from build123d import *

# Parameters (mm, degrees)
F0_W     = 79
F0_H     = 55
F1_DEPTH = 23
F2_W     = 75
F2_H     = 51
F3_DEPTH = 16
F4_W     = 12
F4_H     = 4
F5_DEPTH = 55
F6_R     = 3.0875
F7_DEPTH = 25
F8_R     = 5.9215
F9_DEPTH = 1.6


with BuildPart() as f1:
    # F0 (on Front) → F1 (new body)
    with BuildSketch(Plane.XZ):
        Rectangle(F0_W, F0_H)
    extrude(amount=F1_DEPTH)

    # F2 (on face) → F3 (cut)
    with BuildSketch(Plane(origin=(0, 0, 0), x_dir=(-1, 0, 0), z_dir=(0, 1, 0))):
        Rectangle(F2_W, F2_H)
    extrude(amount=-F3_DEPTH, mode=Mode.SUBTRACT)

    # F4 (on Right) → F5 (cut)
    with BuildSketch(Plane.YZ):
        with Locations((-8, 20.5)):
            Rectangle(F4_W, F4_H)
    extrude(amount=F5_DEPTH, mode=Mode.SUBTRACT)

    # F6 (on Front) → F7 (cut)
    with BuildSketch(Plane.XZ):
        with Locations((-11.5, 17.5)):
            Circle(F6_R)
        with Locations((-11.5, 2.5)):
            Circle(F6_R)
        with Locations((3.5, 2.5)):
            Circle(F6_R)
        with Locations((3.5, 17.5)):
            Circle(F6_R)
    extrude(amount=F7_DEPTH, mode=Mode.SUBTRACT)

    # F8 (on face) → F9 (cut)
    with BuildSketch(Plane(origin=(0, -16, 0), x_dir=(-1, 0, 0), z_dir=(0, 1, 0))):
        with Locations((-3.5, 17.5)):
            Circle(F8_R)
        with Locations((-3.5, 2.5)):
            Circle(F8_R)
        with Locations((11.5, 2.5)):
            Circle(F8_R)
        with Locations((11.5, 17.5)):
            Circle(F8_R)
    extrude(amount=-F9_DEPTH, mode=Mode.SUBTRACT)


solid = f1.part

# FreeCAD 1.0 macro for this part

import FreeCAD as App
import Part
import Sketcher

V = App.Vector
Q = App.Units.Quantity

doc = App.newDocument("Part")
params = doc.addObject("Spreadsheet::Sheet", "Params")
for row, (alias, value) in enumerate([
    ("sketch1_width", "79 mm"),
    ("sketch1_height", "55 mm"),
    ("pad1_length", "23 mm"),
    ("sketch2_width", "75 mm"),
    ("sketch2_height", "51 mm"),
    ("pocket1_length", "16 mm"),
    ("sketch3_width", "12 mm"),
    ("sketch3_height", "4 mm"),
    ("pocket2_length", "55 mm"),
    ("pocket3_length", "25 mm"),
    ("pocket4_length", "1.6 mm"),
], start=1):
    params.set(f"A{row}", alias)
    params.set(f"B{row}", "=" + value)
    params.setAlias(f"B{row}", alias)

body = doc.addObject("PartDesign::Body", "Body")

# Sketch on XZ plane
sketch1 = doc.addObject("Sketcher::SketchObject", "Sketch")
body.addObject(sketch1)
sketch1.AttachmentSupport = (doc.XZ_Plane, [""])
sketch1.MapMode = "FlatFace"
sketch1.addGeometry(Part.LineSegment(V(-40, 28, 0), V(-40, -28, 0)), False)
sketch1.addGeometry(Part.LineSegment(V(-40, -28, 0), V(40, -28, 0)), False)
sketch1.addGeometry(Part.LineSegment(V(40, -28, 0), V(40, 28, 0)), False)
sketch1.addGeometry(Part.LineSegment(V(40, 28, 0), V(-40, 28, 0)), False)
sketch1.addConstraint(Sketcher.Constraint("Coincident", 0, 2, 1, 1))
sketch1.addConstraint(Sketcher.Constraint("Coincident", 1, 2, 2, 1))
sketch1.addConstraint(Sketcher.Constraint("Coincident", 2, 2, 3, 1))
sketch1.addConstraint(Sketcher.Constraint("Coincident", 3, 2, 0, 1))
sketch1.addConstraint(Sketcher.Constraint("Vertical", 0))
sketch1.addConstraint(Sketcher.Constraint("Horizontal", 1))
sketch1.addConstraint(Sketcher.Constraint("Vertical", 2))
sketch1.addConstraint(Sketcher.Constraint("Horizontal", 3))
sketch1.addConstraint(Sketcher.Constraint("Symmetric", 0, 2, 2, 2, -1, 1))
sketch1.addConstraint(Sketcher.Constraint("DistanceX", 1, 1, 1, 2, Q("79 mm")))
sketch1.addConstraint(Sketcher.Constraint("DistanceY", 0, 2, 0, 1, Q("55 mm")))
sketch1.setExpression("Constraints[9]", "Params.sketch1_width")
sketch1.setExpression("Constraints[10]", "Params.sketch1_height")
pad1 = doc.addObject("PartDesign::Pad", "Pad")
body.addObject(pad1)
pad1.Profile = sketch1
pad1.setExpression("Length", "Params.pad1_length")

# Sketch on XZ plane
sketch2 = doc.addObject("Sketcher::SketchObject", "Sketch001")
body.addObject(sketch2)
sketch2.AttachmentSupport = (doc.XZ_Plane, [""])
sketch2.MapMode = "FlatFace"
sketch2.addGeometry(Part.LineSegment(V(38, 26, 0), V(38, -26, 0)), False)
sketch2.addGeometry(Part.LineSegment(V(38, -26, 0), V(-38, -26, 0)), False)
sketch2.addGeometry(Part.LineSegment(V(-38, -26, 0), V(-38, 26, 0)), False)
sketch2.addGeometry(Part.LineSegment(V(-38, 26, 0), V(38, 26, 0)), False)
sketch2.addConstraint(Sketcher.Constraint("Coincident", 0, 2, 1, 1))
sketch2.addConstraint(Sketcher.Constraint("Coincident", 1, 2, 2, 1))
sketch2.addConstraint(Sketcher.Constraint("Coincident", 2, 2, 3, 1))
sketch2.addConstraint(Sketcher.Constraint("Coincident", 3, 2, 0, 1))
sketch2.addConstraint(Sketcher.Constraint("Vertical", 0))
sketch2.addConstraint(Sketcher.Constraint("Horizontal", 1))
sketch2.addConstraint(Sketcher.Constraint("Vertical", 2))
sketch2.addConstraint(Sketcher.Constraint("Horizontal", 3))
sketch2.addConstraint(Sketcher.Constraint("Symmetric", 0, 2, 2, 2, -1, 1))
sketch2.addConstraint(Sketcher.Constraint("DistanceX", 1, 2, 1, 1, Q("75 mm")))
sketch2.addConstraint(Sketcher.Constraint("DistanceY", 0, 2, 0, 1, Q("51 mm")))
sketch2.setExpression("Constraints[9]", "Params.sketch2_width")
sketch2.setExpression("Constraints[10]", "Params.sketch2_height")
pocket1 = doc.addObject("PartDesign::Pocket", "Pocket")
body.addObject(pocket1)
pocket1.Profile = sketch2
pocket1.setExpression("Length", "Params.pocket1_length")
pocket1.Reversed = True

# Sketch on YZ plane
sketch3 = doc.addObject("Sketcher::SketchObject", "Sketch002")
body.addObject(sketch3)
sketch3.AttachmentSupport = (doc.YZ_Plane, [""])
sketch3.MapMode = "FlatFace"
sketch3.addGeometry(Part.LineSegment(V(-14, 22.5, 0), V(-14, 18.5, 0)), False)
sketch3.addGeometry(Part.LineSegment(V(-14, 18.5, 0), V(-2, 18.5, 0)), False)
sketch3.addGeometry(Part.LineSegment(V(-2, 18.5, 0), V(-2, 22.5, 0)), False)
sketch3.addGeometry(Part.LineSegment(V(-2, 22.5, 0), V(-14, 22.5, 0)), False)
sketch3.addConstraint(Sketcher.Constraint("Coincident", 0, 2, 1, 1))
sketch3.addConstraint(Sketcher.Constraint("Coincident", 1, 2, 2, 1))
sketch3.addConstraint(Sketcher.Constraint("Coincident", 2, 2, 3, 1))
sketch3.addConstraint(Sketcher.Constraint("Coincident", 3, 2, 0, 1))
sketch3.addConstraint(Sketcher.Constraint("Vertical", 0))
sketch3.addConstraint(Sketcher.Constraint("Horizontal", 1))
sketch3.addConstraint(Sketcher.Constraint("Vertical", 2))
sketch3.addConstraint(Sketcher.Constraint("Horizontal", 3))
sketch3.addConstraint(Sketcher.Constraint("DistanceX", 1, 1, 1, 2, Q("12 mm")))
sketch3.addConstraint(Sketcher.Constraint("DistanceY", 0, 2, 0, 1, Q("4 mm")))
sketch3.addConstraint(Sketcher.Constraint("DistanceX", 0, 2, -1, 1, Q("14 mm")))
sketch3.addConstraint(Sketcher.Constraint("DistanceY", -1, 1, 0, 2, Q("18.5 mm")))
sketch3.setExpression("Constraints[8]", "Params.sketch3_width")
sketch3.setExpression("Constraints[9]", "Params.sketch3_height")
pocket2 = doc.addObject("PartDesign::Pocket", "Pocket001")
body.addObject(pocket2)
pocket2.Profile = sketch3
pocket2.setExpression("Length", "Params.pocket2_length")
pocket2.Reversed = True

# Sketch on XZ plane
sketch4 = doc.addObject("Sketcher::SketchObject", "Sketch003")
body.addObject(sketch4)
sketch4.AttachmentSupport = (doc.XZ_Plane, [""])
sketch4.MapMode = "FlatFace"
sketch4.addGeometry(Part.Circle(V(-11.5, 17.5, 0), V(0, 0, 1), 3.1), False)
sketch4.addGeometry(Part.Circle(V(-11.5, 2.5, 0), V(0, 0, 1), 3.1), False)
sketch4.addGeometry(Part.Circle(V(3.5, 2.5, 0), V(0, 0, 1), 3.1), False)
sketch4.addGeometry(Part.Circle(V(3.5, 17.5, 0), V(0, 0, 1), 3.1), False)
sketch4.addConstraint(Sketcher.Constraint("Equal", 0, 1))
sketch4.addConstraint(Sketcher.Constraint("Equal", 1, 2))
sketch4.addConstraint(Sketcher.Constraint("Equal", 2, 3))
sketch4.addConstraint(Sketcher.Constraint("Horizontal", 1, 3, 2, 3))
sketch4.addConstraint(Sketcher.Constraint("Horizontal", 0, 3, 3, 3))
sketch4.addConstraint(Sketcher.Constraint("Vertical", 0, 3, 1, 3))
sketch4.addConstraint(Sketcher.Constraint("Vertical", 2, 3, 3, 3))
sketch4.addConstraint(Sketcher.Constraint("Diameter", 0, Q("6.175 mm")))
sketch4.addConstraint(Sketcher.Constraint("DistanceY", 1, 3, 0, 3, Q("15 mm")))
sketch4.addConstraint(Sketcher.Constraint("DistanceX", 1, 3, 2, 3, Q("15 mm")))
sketch4.addConstraint(Sketcher.Constraint("DistanceX", 0, 3, -1, 1, Q("11.5 mm")))
sketch4.addConstraint(Sketcher.Constraint("DistanceY", -1, 1, 0, 3, Q("17.5 mm")))
pocket3 = doc.addObject("PartDesign::Pocket", "Pocket002")
body.addObject(pocket3)
pocket3.Profile = sketch4
pocket3.setExpression("Length", "Params.pocket3_length")
pocket3.Reversed = True

# Sketch on XZ plane
sketch5 = doc.addObject("Sketcher::SketchObject", "Sketch004")
body.addObject(sketch5)
sketch5.AttachmentSupport = (doc.XZ_Plane, [""])
sketch5.MapMode = "FlatFace"
sketch5.AttachmentOffset = App.Placement(V(0, 0, 16), App.Rotation())
sketch5.addGeometry(Part.Circle(V(4, 18, 0), V(0, 0, 1), 6), False)
sketch5.addGeometry(Part.Circle(V(4, 2, 0), V(0, 0, 1), 6), False)
sketch5.addGeometry(Part.Circle(V(-12, 2, 0), V(0, 0, 1), 6), False)
sketch5.addGeometry(Part.Circle(V(-12, 18, 0), V(0, 0, 1), 6), False)
sketch5.addConstraint(Sketcher.Constraint("Equal", 0, 1))
sketch5.addConstraint(Sketcher.Constraint("Equal", 1, 2))
sketch5.addConstraint(Sketcher.Constraint("Equal", 2, 3))
sketch5.addConstraint(Sketcher.Constraint("Horizontal", 1, 3, 2, 3))
sketch5.addConstraint(Sketcher.Constraint("Horizontal", 0, 3, 3, 3))
sketch5.addConstraint(Sketcher.Constraint("Vertical", 0, 3, 1, 3))
sketch5.addConstraint(Sketcher.Constraint("Vertical", 2, 3, 3, 3))
sketch5.addConstraint(Sketcher.Constraint("Diameter", 0, Q("11.843 mm")))
sketch5.addConstraint(Sketcher.Constraint("DistanceY", 1, 3, 0, 3, Q("15 mm")))
sketch5.addConstraint(Sketcher.Constraint("DistanceX", 2, 3, 1, 3, Q("15 mm")))
sketch5.addConstraint(Sketcher.Constraint("DistanceX", -1, 1, 0, 3, Q("3.5 mm")))
sketch5.addConstraint(Sketcher.Constraint("DistanceY", -1, 1, 0, 3, Q("17.5 mm")))
pocket4 = doc.addObject("PartDesign::Pocket", "Pocket003")
body.addObject(pocket4)
pocket4.Profile = sketch5
pocket4.setExpression("Length", "Params.pocket4_length")
pocket4.Reversed = True

doc.recompute()
